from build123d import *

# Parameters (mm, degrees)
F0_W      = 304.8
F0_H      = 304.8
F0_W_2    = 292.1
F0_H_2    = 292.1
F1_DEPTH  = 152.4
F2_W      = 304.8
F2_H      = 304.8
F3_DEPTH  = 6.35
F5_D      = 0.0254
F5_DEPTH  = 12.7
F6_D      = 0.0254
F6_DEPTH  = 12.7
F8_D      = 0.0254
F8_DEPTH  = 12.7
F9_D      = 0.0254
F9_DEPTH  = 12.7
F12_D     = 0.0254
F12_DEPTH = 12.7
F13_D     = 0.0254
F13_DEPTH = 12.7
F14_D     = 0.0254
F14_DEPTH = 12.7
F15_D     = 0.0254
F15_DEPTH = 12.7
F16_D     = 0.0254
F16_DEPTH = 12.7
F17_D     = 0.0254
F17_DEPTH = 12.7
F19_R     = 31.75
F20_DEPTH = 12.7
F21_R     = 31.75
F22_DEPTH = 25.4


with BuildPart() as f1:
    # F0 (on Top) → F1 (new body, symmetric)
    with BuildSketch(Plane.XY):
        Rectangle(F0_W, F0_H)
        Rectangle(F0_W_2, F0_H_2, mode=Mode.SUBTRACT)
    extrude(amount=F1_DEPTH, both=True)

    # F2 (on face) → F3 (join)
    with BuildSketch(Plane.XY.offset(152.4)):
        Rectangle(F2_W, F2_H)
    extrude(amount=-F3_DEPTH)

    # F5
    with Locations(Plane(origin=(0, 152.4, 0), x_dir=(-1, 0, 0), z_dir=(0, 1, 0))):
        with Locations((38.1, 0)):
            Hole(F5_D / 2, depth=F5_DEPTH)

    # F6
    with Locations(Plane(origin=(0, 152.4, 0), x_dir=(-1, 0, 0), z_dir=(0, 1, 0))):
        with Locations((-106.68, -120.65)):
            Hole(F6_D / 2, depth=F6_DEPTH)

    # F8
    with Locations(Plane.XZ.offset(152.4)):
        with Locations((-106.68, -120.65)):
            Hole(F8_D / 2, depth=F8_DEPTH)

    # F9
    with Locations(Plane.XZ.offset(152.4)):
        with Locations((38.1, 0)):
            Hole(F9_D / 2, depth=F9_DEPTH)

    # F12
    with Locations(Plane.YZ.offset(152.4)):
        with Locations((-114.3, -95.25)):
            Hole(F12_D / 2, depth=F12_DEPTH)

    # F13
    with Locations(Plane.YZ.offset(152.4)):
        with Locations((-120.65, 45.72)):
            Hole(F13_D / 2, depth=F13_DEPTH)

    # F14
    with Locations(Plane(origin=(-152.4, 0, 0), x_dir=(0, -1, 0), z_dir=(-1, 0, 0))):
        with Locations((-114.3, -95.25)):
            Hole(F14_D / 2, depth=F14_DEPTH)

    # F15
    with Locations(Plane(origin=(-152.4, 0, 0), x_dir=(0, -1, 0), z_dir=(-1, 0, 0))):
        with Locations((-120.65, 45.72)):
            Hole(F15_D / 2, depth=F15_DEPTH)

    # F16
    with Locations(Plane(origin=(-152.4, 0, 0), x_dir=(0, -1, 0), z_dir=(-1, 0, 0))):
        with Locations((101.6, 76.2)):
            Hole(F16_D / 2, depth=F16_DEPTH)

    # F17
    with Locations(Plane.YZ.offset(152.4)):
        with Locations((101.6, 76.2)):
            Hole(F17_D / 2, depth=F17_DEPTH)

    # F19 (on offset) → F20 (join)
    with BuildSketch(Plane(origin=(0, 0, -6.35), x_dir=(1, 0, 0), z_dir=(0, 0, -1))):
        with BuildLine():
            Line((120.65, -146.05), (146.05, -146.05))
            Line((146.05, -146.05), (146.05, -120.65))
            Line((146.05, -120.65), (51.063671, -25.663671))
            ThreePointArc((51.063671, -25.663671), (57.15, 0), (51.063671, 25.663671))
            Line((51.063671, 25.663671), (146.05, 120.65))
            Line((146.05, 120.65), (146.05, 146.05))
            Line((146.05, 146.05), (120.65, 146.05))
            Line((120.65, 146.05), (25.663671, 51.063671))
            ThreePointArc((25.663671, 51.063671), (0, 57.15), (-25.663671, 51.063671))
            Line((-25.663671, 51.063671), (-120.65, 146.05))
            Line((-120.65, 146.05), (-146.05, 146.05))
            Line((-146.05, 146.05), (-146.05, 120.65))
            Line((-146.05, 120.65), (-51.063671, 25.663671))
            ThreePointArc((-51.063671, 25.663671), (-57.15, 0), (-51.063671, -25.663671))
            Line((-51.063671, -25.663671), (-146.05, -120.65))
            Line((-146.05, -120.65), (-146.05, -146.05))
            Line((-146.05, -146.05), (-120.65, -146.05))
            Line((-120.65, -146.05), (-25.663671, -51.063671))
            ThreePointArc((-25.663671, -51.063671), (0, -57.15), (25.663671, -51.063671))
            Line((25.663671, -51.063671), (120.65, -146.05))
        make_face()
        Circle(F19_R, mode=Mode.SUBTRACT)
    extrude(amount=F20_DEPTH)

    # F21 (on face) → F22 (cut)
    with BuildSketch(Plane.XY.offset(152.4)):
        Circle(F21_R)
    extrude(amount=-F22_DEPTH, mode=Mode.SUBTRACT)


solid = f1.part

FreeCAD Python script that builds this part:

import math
import FreeCAD as App
import Part
import Sketcher
Q = App.Units.Quantity


def add_polygon(sketch, points):
    """Adds a closed chain of lines whose ends are joined by coincident constraints."""
    first, n = sketch.GeometryCount, len(points)
    for a, b in zip(points, points[1:] + points[:1]):
        sketch.addGeometry(Part.LineSegment(App.Vector(*a, 0), App.Vector(*b, 0)), False)
    for i in range(n):
        sketch.addConstraint(Sketcher.Constraint("Coincident", first + i, 2, first + (i + 1) % n, 1))

doc = App.newDocument("Part")
body = doc.addObject("PartDesign::Body", "Body")

sketch1 = body.newObject("Sketcher::SketchObject", "Sketch")
sketch1.AttachmentSupport = (doc.getObject("XY_Plane"), [""])
sketch1.MapMode = "FlatFace"
add_polygon(sketch1, [(-152, 152), (-152, -152), (152, -152), (152, 152)])
add_polygon(sketch1, [(146, -146), (-146, -146), (-146, 146), (146, 146)])
sketch1.addConstraint([
    Sketcher.Constraint("Vertical", 0),
    Sketcher.Constraint("Horizontal", 1),
    Sketcher.Constraint("Vertical", 2),
    Sketcher.Constraint("Horizontal", 3),
    Sketcher.Constraint("Horizontal", 4),
    Sketcher.Constraint("Vertical", 5),
    Sketcher.Constraint("Horizontal", 6),
    Sketcher.Constraint("Vertical", 7),
    Sketcher.Constraint("Symmetric", 0, 2, 2, 2, -1, 1),
    Sketcher.Constraint("Symmetric", 4, 2, 6, 2, -1, 1),
    Sketcher.Constraint("Equal", 3, 0),
    Sketcher.Constraint("Equal", 6, 5),
    Sketcher.Constraint("DistanceX", 1, 1, 1, 2, Q("12 in")),
    Sketcher.Constraint("DistanceX", 4, 2, 4, 1, Q("11.5 in")),
])
pad1 = body.newObject("PartDesign::Pad", "Pad")
pad1.Profile = sketch1
pad1.Length = Q("12 in")
pad1.Midplane = True

sketch2 = body.newObject("Sketcher::SketchObject", "Sketch001")
sketch2.AttachmentSupport = (doc.getObject("XY_Plane"), [""])
sketch2.MapMode = "FlatFace"
sketch2.AttachmentOffset = App.Placement(App.Vector(0, 0, 6 * 25.4), App.Rotation())
add_polygon(sketch2, [(-152, 152), (-152, -152), (152, -152), (152, 152)])
sketch2.addConstraint([
    Sketcher.Constraint("Vertical", 0),
    Sketcher.Constraint("Horizontal", 1),
    Sketcher.Constraint("Vertical", 2),
    Sketcher.Constraint("Horizontal", 3),
    Sketcher.Constraint("Symmetric", 0, 2, 2, 2, -1, 1),
    Sketcher.Constraint("Equal", 3, 0),
    Sketcher.Constraint("DistanceX", 1, 1, 1, 2, Q("12 in")),
])
pad2 = body.newObject("PartDesign::Pad", "Pad001")
pad2.Profile = sketch2
pad2.Length = Q("0.25 in")
pad2.Reversed = True

sketch3 = body.newObject("Sketcher::SketchObject", "Sketch002")
sketch3.AttachmentSupport = (doc.getObject("XZ_Plane"), [""])
sketch3.MapMode = "FlatFace"
sketch3.AttachmentOffset = App.Placement(App.Vector(0, 0, -6 * 25.4), App.Rotation())
sketch3.addGeometry(Part.Circle(App.Vector(-38.1, 0, 0), App.Vector(0, 0, 1), 0.013), False)
sketch3.addConstraint([
    Sketcher.Constraint("PointOnObject", 0, 3, -1),
    Sketcher.Constraint("Diameter", 0, Q("0.001 in")),
    Sketcher.Constraint("DistanceX", 0, 3, -1, 1, Q("1.5 in")),
])
doc.recompute()
hole = body.newObject("PartDesign::Hole", "Hole")
hole.Profile = sketch3
hole.ThreadType = "None"
hole.Diameter = Q("0.001 in")
hole.DepthType = "Dimension"
hole.Depth = Q("0.5 in")
hole.DrillPoint = "Flat"
hole.Reversed = True

sketch4 = body.newObject("Sketcher::SketchObject", "Sketch003")
sketch4.AttachmentSupport = (doc.getObject("XZ_Plane"), [""])
sketch4.MapMode = "FlatFace"
sketch4.AttachmentOffset = App.Placement(App.Vector(0, 0, -6 * 25.4), App.Rotation())
sketch4.addGeometry(Part.Circle(App.Vector(106.68, -120.65, 0), App.Vector(0, 0, 1), 0.013), False)
sketch4.addConstraint([
    Sketcher.Constraint("Diameter", 0, Q("0.001 in")),
    Sketcher.Constraint("DistanceX", -1, 1, 0, 3, Q("4.2 in")),
    Sketcher.Constraint("DistanceY", 0, 3, -1, 1, Q("4.75 in")),
])
doc.recompute()
hole2 = body.newObject("PartDesign::Hole", "Hole001")
hole2.Profile = sketch4
hole2.ThreadType = "None"
hole2.Diameter = Q("0.001 in")
hole2.DepthType = "Dimension"
hole2.Depth = Q("0.5 in")
hole2.DrillPoint = "Flat"
hole2.Reversed = True

sketch5 = body.newObject("Sketcher::SketchObject", "Sketch004")
sketch5.AttachmentSupport = (doc.getObject("XZ_Plane"), [""])
sketch5.MapMode = "FlatFace"
sketch5.AttachmentOffset = App.Placement(App.Vector(0, 0, 6 * 25.4), App.Rotation())
sketch5.addGeometry(Part.Circle(App.Vector(-106.68, -120.65, 0), App.Vector(0, 0, 1), 0.013), False)
sketch5.addConstraint([
    Sketcher.Constraint("Diameter", 0, Q("0.001 in")),
    Sketcher.Constraint("DistanceX", 0, 3, -1, 1, Q("4.2 in")),
    Sketcher.Constraint("DistanceY", 0, 3, -1, 1, Q("4.75 in")),
])
doc.recompute()
hole3 = body.newObject("PartDesign::Hole", "Hole002")
hole3.Profile = sketch5
hole3.ThreadType = "None"
hole3.Diameter = Q("0.001 in")
hole3.DepthType = "Dimension"
hole3.Depth = Q("0.5 in")
hole3.DrillPoint = "Flat"

sketch6 = body.newObject("Sketcher::SketchObject", "Sketch005")
sketch6.AttachmentSupport = (doc.getObject("XZ_Plane"), [""])
sketch6.MapMode = "FlatFace"
sketch6.AttachmentOffset = App.Placement(App.Vector(0, 0, 6 * 25.4), App.Rotation())
sketch6.addGeometry(Part.Circle(App.Vector(38.1, 0, 0), App.Vector(0, 0, 1), 0.013), False)
sketch6.addConstraint([
    Sketcher.Constraint("PointOnObject", 0, 3, -1),
    Sketcher.Constraint("Diameter", 0, Q("0.001 in")),
    Sketcher.Constraint("DistanceX", -1, 1, 0, 3, Q("1.5 in")),
])
doc.recompute()
hole4 = body.newObject("PartDesign::Hole", "Hole003")
hole4.Profile = sketch6
hole4.ThreadType = "None"
hole4.Diameter = Q("0.001 in")
hole4.DepthType = "Dimension"
hole4.Depth = Q("0.5 in")
hole4.DrillPoint = "Flat"

sketch7 = body.newObject("Sketcher::SketchObject", "Sketch006")
sketch7.AttachmentSupport = (doc.getObject("YZ_Plane"), [""])
sketch7.MapMode = "FlatFace"
sketch7.AttachmentOffset = App.Placement(App.Vector(0, 0, 6 * 25.4), App.Rotation())
sketch7.addGeometry(Part.Circle(App.Vector(-114.3, -95.25, 0), App.Vector(0, 0, 1), 0.013), False)
sketch7.addConstraint([
    Sketcher.Constraint("Diameter", 0, Q("0.001 in")),
    Sketcher.Constraint("DistanceX", 0, 3, -1, 1, Q("4.5 in")),
    Sketcher.Constraint("DistanceY", 0, 3, -1, 1, Q("3.75 in")),
])
doc.recompute()
hole5 = body.newObject("PartDesign::Hole", "Hole004")
hole5.Profile = sketch7
hole5.ThreadType = "None"
hole5.Diameter = Q("0.001 in")
hole5.DepthType = "Dimension"
hole5.Depth = Q("0.5 in")
hole5.DrillPoint = "Flat"

sketch8 = body.newObject("Sketcher::SketchObject", "Sketch007")
sketch8.AttachmentSupport = (doc.getObject("YZ_Plane"), [""])
sketch8.MapMode = "FlatFace"
sketch8.AttachmentOffset = App.Placement(App.Vector(0, 0, 6 * 25.4), App.Rotation())
sketch8.addGeometry(Part.Circle(App.Vector(-120.65, 45.72, 0), App.Vector(0, 0, 1), 0.013), False)
sketch8.addConstraint([
    Sketcher.Constraint("Diameter", 0, Q("0.001 in")),
    Sketcher.Constraint("DistanceY", -1, 1, 0, 3, Q("1.8 in")),
    Sketcher.Constraint("DistanceX", 0, 3, -1, 1, Q("4.75 in")),
])
doc.recompute()
hole6 = body.newObject("PartDesign::Hole", "Hole005")
hole6.Profile = sketch8
hole6.ThreadType = "None"
hole6.Diameter = Q("0.001 in")
hole6.DepthType = "Dimension"
hole6.Depth = Q("0.5 in")
hole6.DrillPoint = "Flat"

sketch9 = body.newObject("Sketcher::SketchObject", "Sketch008")
sketch9.AttachmentSupport = (doc.getObject("YZ_Plane"), [""])
sketch9.MapMode = "FlatFace"
sketch9.AttachmentOffset = App.Placement(App.Vector(0, 0, -6 * 25.4), App.Rotation())
sketch9.addGeometry(Part.Circle(App.Vector(114.3, -95.25, 0), App.Vector(0, 0, 1), 0.013), False)
sketch9.addConstraint([
    Sketcher.Constraint("Diameter", 0, Q("0.001 in")),
    Sketcher.Constraint("DistanceX", -1, 1, 0, 3, Q("4.5 in")),
    Sketcher.Constraint("DistanceY", 0, 3, -1, 1, Q("3.75 in")),
])
doc.recompute()
hole7 = body.newObject("PartDesign::Hole", "Hole006")
hole7.Profile = sketch9
hole7.ThreadType = "None"
hole7.Diameter = Q("0.001 in")
hole7.DepthType = "Dimension"
hole7.Depth = Q("0.5 in")
hole7.DrillPoint = "Flat"
hole7.Reversed = True

sketch10 = body.newObject("Sketcher::SketchObject", "Sketch009")
sketch10.AttachmentSupport = (doc.getObject("YZ_Plane"), [""])
sketch10.MapMode = "FlatFace"
sketch10.AttachmentOffset = App.Placement(App.Vector(0, 0, -6 * 25.4), App.Rotation())
sketch10.addGeometry(Part.Circle(App.Vector(120.65, 45.72, 0), App.Vector(0, 0, 1), 0.013), False)
sketch10.addConstraint([
    Sketcher.Constraint("Diameter", 0, Q("0.001 in")),
    Sketcher.Constraint("DistanceY", -1, 1, 0, 3, Q("1.8 in")),
    Sketcher.Constraint("DistanceX", -1, 1, 0, 3, Q("4.75 in")),
])
doc.recompute()
hole8 = body.newObject("PartDesign::Hole", "Hole007")
hole8.Profile = sketch10
hole8.ThreadType = "None"
hole8.Diameter = Q("0.001 in")
hole8.DepthType = "Dimension"
hole8.Depth = Q("0.5 in")
hole8.DrillPoint = "Flat"
hole8.Reversed = True

sketch11 = body.newObject("Sketcher::SketchObject", "Sketch010")
sketch11.AttachmentSupport = (doc.getObject("YZ_Plane"), [""])
sketch11.MapMode = "FlatFace"
sketch11.AttachmentOffset = App.Placement(App.Vector(0, 0, -6 * 25.4), App.Rotation())
sketch11.addGeometry(Part.Circle(App.Vector(-101.6, 76.2, 0), App.Vector(0, 0, 1), 0.013), False)
sketch11.addConstraint([
    Sketcher.Constraint("Diameter", 0, Q("0.001 in")),
    Sketcher.Constraint("DistanceX", 0, 3, -1, 1, Q("4 in")),
    Sketcher.Constraint("DistanceY", -1, 1, 0, 3, Q("3 in")),
])
doc.recompute()
hole9 = body.newObject("PartDesign::Hole", "Hole008")
hole9.Profile = sketch11
hole9.ThreadType = "None"
hole9.Diameter = Q("0.001 in")
hole9.DepthType = "Dimension"
hole9.Depth = Q("0.5 in")
hole9.DrillPoint = "Flat"
hole9.Reversed = True

sketch12 = body.newObject("Sketcher::SketchObject", "Sketch011")
sketch12.AttachmentSupport = (doc.getObject("YZ_Plane"), [""])
sketch12.MapMode = "FlatFace"
sketch12.AttachmentOffset = App.Placement(App.Vector(0, 0, 6 * 25.4), App.Rotation())
sketch12.addGeometry(Part.Circle(App.Vector(101.6, 76.2, 0), App.Vector(0, 0, 1), 0.013), False)
sketch12.addConstraint([
    Sketcher.Constraint("Diameter", 0, Q("0.001 in")),
    Sketcher.Constraint("DistanceX", -1, 1, 0, 3, Q("4 in")),
    Sketcher.Constraint("DistanceY", -1, 1, 0, 3, Q("3 in")),
])
doc.recompute()
hole10 = body.newObject("PartDesign::Hole", "Hole009")
hole10.Profile = sketch12
hole10.ThreadType = "None"
hole10.Diameter = Q("0.001 in")
hole10.DepthType = "Dimension"
hole10.Depth = Q("0.5 in")
hole10.DrillPoint = "Flat"

sketch13 = body.newObject("Sketcher::SketchObject", "Sketch012")
sketch13.AttachmentSupport = (doc.getObject("XY_Plane"), [""])
sketch13.MapMode = "FlatFace"
sketch13.AttachmentOffset = App.Placement(App.Vector(0, 0, -0.25 * 25.4), App.Rotation())
sketch13.addGeometry([
    Part.LineSegment(App.Vector(121, 146, 0), App.Vector(146, 146, 0)),
    Part.LineSegment(App.Vector(146, 146, 0), App.Vector(146, 121, 0)),
    Part.LineSegment(App.Vector(146, 121, 0), App.Vector(51, 26, 0)),
    Part.ArcOfCircle(Part.Circle(App.Vector(0, 0, 0), App.Vector(0, 0, 1), 57), math.radians(-27), math.radians(27)),
    Part.LineSegment(App.Vector(51, -26, 0), App.Vector(146, -121, 0)),
    Part.LineSegment(App.Vector(146, -121, 0), App.Vector(146, -146, 0)),
    Part.LineSegment(App.Vector(146, -146, 0), App.Vector(121, -146, 0)),
    Part.LineSegment(App.Vector(121, -146, 0), App.Vector(26, -51, 0)),
    Part.ArcOfCircle(Part.Circle(App.Vector(0, 0, 0), App.Vector(0, 0, 1), 57), math.radians(-117), math.radians(-63)),
    Part.LineSegment(App.Vector(-26, -51, 0), App.Vector(-121, -146, 0)),
    Part.LineSegment(App.Vector(-121, -146, 0), App.Vector(-146, -146, 0)),
    Part.LineSegment(App.Vector(-146, -146, 0), App.Vector(-146, -121, 0)),
    Part.LineSegment(App.Vector(-146, -121, 0), App.Vector(-51, -26, 0)),
    Part.ArcOfCircle(Part.Circle(App.Vector(0, 0, 0), App.Vector(0, 0, 1), 57), math.radians(153), math.radians(207)),
    Part.LineSegment(App.Vector(-51, 26, 0), App.Vector(-146, 121, 0)),
    Part.LineSegment(App.Vector(-146, 121, 0), App.Vector(-146, 146, 0)),
    Part.LineSegment(App.Vector(-146, 146, 0), App.Vector(-121, 146, 0)),
    Part.LineSegment(App.Vector(-121, 146, 0), App.Vector(-26, 51, 0)),
    Part.ArcOfCircle(Part.Circle(App.Vector(0, 0, 0), App.Vector(0, 0, 1), 57), math.radians(63), math.radians(117)),
    Part.LineSegment(App.Vector(26, 51, 0), App.Vector(121, 146, 0)),
    Part.Circle(App.Vector(0, 0, 0), App.Vector(0, 0, 1), 32),
], False)
sketch13.addConstraint([
    Sketcher.Constraint("Coincident", 0, 2, 1, 1),
    Sketcher.Constraint("Coincident", 1, 2, 2, 1),
    Sketcher.Constraint("Coincident", 2, 2, 3, 2),
    Sketcher.Constraint("Coincident", 3, 1, 4, 1),
    Sketcher.Constraint("Coincident", 4, 2, 5, 1),
    Sketcher.Constraint("Coincident", 5, 2, 6, 1),
    Sketcher.Constraint("Coincident", 6, 2, 7, 1),
    Sketcher.Constraint("Coincident", 7, 2, 8, 2),
    Sketcher.Constraint("Coincident", 8, 1, 9, 1),
    Sketcher.Constraint("Coincident", 9, 2, 10, 1),
    Sketcher.Constraint("Coincident", 10, 2, 11, 1),
    Sketcher.Constraint("Coincident", 11, 2, 12, 1),
    Sketcher.Constraint("Coincident", 12, 2, 13, 2),
    Sketcher.Constraint("Coincident", 13, 1, 14, 1),
    Sketcher.Constraint("Coincident", 14, 2, 15, 1),
    Sketcher.Constraint("Coincident", 15, 2, 16, 1),
    Sketcher.Constraint("Coincident", 16, 2, 17, 1),
    Sketcher.Constraint("Coincident", 17, 2, 18, 2),
    Sketcher.Constraint("Coincident", 18, 1, 19, 1),
    Sketcher.Constraint("Coincident", 19, 2, 0, 1),
    Sketcher.Constraint("Horizontal", 0),
    Sketcher.Constraint("Vertical", 1),
    Sketcher.Constraint("Vertical", 5),
    Sketcher.Constraint("Horizontal", 6),
    Sketcher.Constraint("Horizontal", 10),
    Sketcher.Constraint("Vertical", 11),
    Sketcher.Constraint("Vertical", 15),
    Sketcher.Constraint("Horizontal", 16),
    Sketcher.Constraint("Coincident", 3, 3, -1, 1),
    Sketcher.Constraint("Coincident", 8, 3, -1, 1),
    Sketcher.Constraint("Coincident", 13, 3, -1, 1),
    Sketcher.Constraint("Coincident", 18, 3, -1, 1),
    Sketcher.Constraint("Coincident", 20, 3, -1, 1),
    Sketcher.Constraint("Equal", 3, 8),
    Sketcher.Constraint("Equal", 8, 13),
    Sketcher.Constraint("Equal", 13, 18),
    Sketcher.Constraint("Symmetric", 0, 2, 10, 2, -1, 1),
    Sketcher.Constraint("Symmetric", 4, 2, 14, 2, -1, 1),
    Sketcher.Constraint("Symmetric", 6, 2, 16, 2, -1, 1),
    Sketcher.Constraint("Symmetric", 6, 2, 9, 2, -2),
    Sketcher.Constraint("Symmetric", 4, 2, 11, 2, -2),
    Sketcher.Constraint("Perpendicular", 2, 4),
    Sketcher.Constraint("Parallel", 4, 7),
    Sketcher.Constraint("Perpendicular", 7, 9),
    Sketcher.Constraint("Parallel", 9, 12),
    Sketcher.Constraint("Perpendicular", 12, 14),
    Sketcher.Constraint("Parallel", 14, 17),
    Sketcher.Constraint("Perpendicular", 17, 19),
    Sketcher.Constraint("Horizontal", 7, 2, 8, 1),
    Sketcher.Constraint("Horizontal", 2, 2, 13, 1),
    Sketcher.Constraint("Horizontal", 17, 2, 18, 1),
    Sketcher.Constraint("Equal", 16, 1),
    Sketcher.Constraint("Equal", 4, 7),
    Sketcher.Constraint("Diameter", 20, Q("2.5 in")),
    Sketcher.Constraint("DistanceX", 0, 1, 0, 2, Q("1 in")),
    Sketcher.Constraint("Radius", 3, Q("2.25 in")),
    Sketcher.Constraint("DistanceX", -1, 1, 0, 2, Q("5.75 in")),
])
pad3 = body.newObject("PartDesign::Pad", "Pad002")
pad3.Profile = sketch13
pad3.Length = Q("0.5 in")
pad3.Reversed = True

sketch14 = body.newObject("Sketcher::SketchObject", "Sketch013")
sketch14.AttachmentSupport = (doc.getObject("XY_Plane"), [""])
sketch14.MapMode = "FlatFace"
sketch14.AttachmentOffset = App.Placement(App.Vector(0, 0, 6 * 25.4), App.Rotation())
sketch14.addGeometry(Part.Circle(App.Vector(0, 0, 0), App.Vector(0, 0, 1), 32), False)
sketch14.addConstraint([
    Sketcher.Constraint("Coincident", 0, 3, -1, 1),
    Sketcher.Constraint("Diameter", 0, Q("2.5 in")),
])
pocket1 = body.newObject("PartDesign::Pocket", "Pocket")
pocket1.Profile = sketch14
pocket1.Length = Q("1 in")

doc.recompute()
